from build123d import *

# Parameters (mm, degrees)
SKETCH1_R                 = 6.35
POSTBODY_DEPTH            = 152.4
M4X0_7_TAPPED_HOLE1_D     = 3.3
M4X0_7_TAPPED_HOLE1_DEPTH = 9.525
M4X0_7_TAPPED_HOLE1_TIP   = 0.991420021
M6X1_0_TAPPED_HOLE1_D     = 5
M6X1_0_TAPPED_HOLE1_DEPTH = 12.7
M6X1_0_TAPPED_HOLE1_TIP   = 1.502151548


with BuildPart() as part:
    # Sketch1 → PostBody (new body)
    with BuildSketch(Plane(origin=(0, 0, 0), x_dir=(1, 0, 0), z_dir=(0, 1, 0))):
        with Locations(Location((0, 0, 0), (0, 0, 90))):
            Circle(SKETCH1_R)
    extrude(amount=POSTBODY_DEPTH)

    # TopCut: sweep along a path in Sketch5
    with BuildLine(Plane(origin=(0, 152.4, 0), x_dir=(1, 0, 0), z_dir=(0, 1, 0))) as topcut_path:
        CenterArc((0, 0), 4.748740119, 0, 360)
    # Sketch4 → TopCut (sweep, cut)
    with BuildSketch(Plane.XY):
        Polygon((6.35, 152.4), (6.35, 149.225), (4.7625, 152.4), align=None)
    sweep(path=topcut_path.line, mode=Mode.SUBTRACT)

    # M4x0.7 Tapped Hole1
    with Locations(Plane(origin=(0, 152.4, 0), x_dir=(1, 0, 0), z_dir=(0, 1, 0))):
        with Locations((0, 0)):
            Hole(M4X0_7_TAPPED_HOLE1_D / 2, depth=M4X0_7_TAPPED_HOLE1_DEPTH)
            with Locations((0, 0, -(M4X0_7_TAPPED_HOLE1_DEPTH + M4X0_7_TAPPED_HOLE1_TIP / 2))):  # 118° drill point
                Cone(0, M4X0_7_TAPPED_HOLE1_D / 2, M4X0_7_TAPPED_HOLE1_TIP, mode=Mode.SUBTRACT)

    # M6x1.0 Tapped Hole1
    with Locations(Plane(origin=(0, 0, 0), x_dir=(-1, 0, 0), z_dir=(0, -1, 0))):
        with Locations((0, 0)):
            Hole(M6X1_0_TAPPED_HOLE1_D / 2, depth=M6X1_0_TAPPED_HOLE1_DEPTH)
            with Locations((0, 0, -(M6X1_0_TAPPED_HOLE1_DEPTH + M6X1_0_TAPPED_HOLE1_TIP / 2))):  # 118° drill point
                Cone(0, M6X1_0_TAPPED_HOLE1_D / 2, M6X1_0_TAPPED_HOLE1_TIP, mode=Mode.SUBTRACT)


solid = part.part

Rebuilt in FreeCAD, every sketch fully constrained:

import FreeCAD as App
import Part
import Sketcher
Q = App.Units.Quantity


def add_polygon(sketch, points):
    """Adds a closed chain of lines whose ends are joined by coincident constraints."""
    first, n = sketch.GeometryCount, len(points)
    for a, b in zip(points, points[1:] + points[:1]):
        sketch.addGeometry(Part.LineSegment(App.Vector(*a, 0), App.Vector(*b, 0)), False)
    for i in range(n):
        sketch.addConstraint(Sketcher.Constraint("Coincident", first + i, 2, first + (i + 1) % n, 1))

doc = App.newDocument("Part")
body = doc.addObject("PartDesign::Body", "Body")

# Sketch on XZ plane
sketch1 = doc.addObject("Sketcher::SketchObject", "Sketch")
body.addObject(sketch1)
sketch1.AttachmentSupport = (doc.XZ_Plane, [""])
sketch1.MapMode = "FlatFace"
sketch1.addGeometry(Part.Circle(App.Vector(0, 0, 0), App.Vector(0, 0, 1), 6), False)
sketch1.addConstraint([
    Sketcher.Constraint("Coincident", 0, 3, -1, 1),
    Sketcher.Constraint("Diameter", 0, Q("0.5 in")),
])
pad1 = doc.addObject("PartDesign::Pad", "Pad")
body.addObject(pad1)
pad1.Profile = sketch1
pad1.Length = Q("6 in")
pad1.Reversed = True

# Sketch on XY plane
sketch2 = doc.addObject("Sketcher::SketchObject", "Sketch001")
body.addObject(sketch2)
sketch2.AttachmentSupport = (doc.XY_Plane, [""])
sketch2.MapMode = "FlatFace"
add_polygon(sketch2, [(6.3, 149.2), (6.3, 152.4), (4.8, 152.4)])  # lines 0-2
sketch2.addConstraint([
    Sketcher.Constraint("Vertical", 0),
    Sketcher.Constraint("Horizontal", 1),
    Sketcher.Constraint("DistanceY", -1, 1, 0, 2, Q("6 in")),
    Sketcher.Constraint("DistanceX", 1, 2, 1, 1, Q("0.0625 in")),
    Sketcher.Constraint("DistanceY", 0, 1, 0, 2, Q("0.125 in")),
    Sketcher.Constraint("DistanceX", -1, 1, 0, 2, Q("0.25 in")),
])

# Sketch on XZ plane
sketch3 = doc.addObject("Sketcher::SketchObject", "Sketch002")
body.addObject(sketch3)
sketch3.AttachmentSupport = (doc.XZ_Plane, [""])
sketch3.MapMode = "FlatFace"
sketch3.AttachmentOffset = App.Placement(App.Vector(0, 0, -6 * 25.4), App.Rotation())
sketch3.addGeometry(Part.Circle(App.Vector(0, 0, 0), App.Vector(0, 0, 1), 4.7), False)
sketch3.addConstraint([
    Sketcher.Constraint("Coincident", 0, 3, -1, 1),
    Sketcher.Constraint("Diameter", 0, Q("9.49748 mm")),
])
doc.recompute()

subtractivepipe = doc.addObject("PartDesign::SubtractivePipe", "SubtractivePipe")
body.addObject(subtractivepipe)
subtractivepipe.Profile = sketch2
subtractivepipe.Spine = (sketch3, ["Edge1"])

# Sketch on XZ plane
sketch4 = doc.addObject("Sketcher::SketchObject", "Sketch003")
body.addObject(sketch4)
sketch4.AttachmentSupport = (doc.XZ_Plane, [""])
sketch4.MapMode = "FlatFace"
sketch4.AttachmentOffset = App.Placement(App.Vector(0, 0, -6 * 25.4), App.Rotation())
sketch4.addGeometry(Part.Circle(App.Vector(0, 0, 0), App.Vector(0, 0, 1), 1.6), False)
sketch4.addConstraint([
    Sketcher.Constraint("Coincident", 0, 3, -1, 1),
    Sketcher.Constraint("Diameter", 0, Q("3.3 mm")),
])
doc.recompute()
hole = doc.addObject("PartDesign::Hole", "Hole")
body.addObject(hole)
hole.Profile = sketch4
hole.ThreadType = "None"
hole.Diameter = 3.3
hole.DepthType = "Dimension"
hole.Depth = Q("0.375 in")
hole.DrillPoint = "Angled"
hole.DrillPointAngle = 118
hole.Reversed = True

# Sketch on XZ plane
sketch5 = doc.addObject("Sketcher::SketchObject", "Sketch004")
body.addObject(sketch5)
sketch5.AttachmentSupport = (doc.XZ_Plane, [""])
sketch5.MapMode = "FlatFace"
sketch5.addGeometry(Part.Circle(App.Vector(0, 0, 0), App.Vector(0, 0, 1), 2.5), False)
sketch5.addConstraint([
    Sketcher.Constraint("Coincident", 0, 3, -1, 1),
    Sketcher.Constraint("Diameter", 0, Q("5 mm")),
])
doc.recompute()
hole2 = doc.addObject("PartDesign::Hole", "Hole001")
body.addObject(hole2)
hole2.Profile = sketch5
hole2.ThreadType = "None"
hole2.Diameter = 5
hole2.DepthType = "Dimension"
hole2.Depth = Q("0.5 in")
hole2.DrillPoint = "Angled"
hole2.DrillPointAngle = 118

doc.recompute()
